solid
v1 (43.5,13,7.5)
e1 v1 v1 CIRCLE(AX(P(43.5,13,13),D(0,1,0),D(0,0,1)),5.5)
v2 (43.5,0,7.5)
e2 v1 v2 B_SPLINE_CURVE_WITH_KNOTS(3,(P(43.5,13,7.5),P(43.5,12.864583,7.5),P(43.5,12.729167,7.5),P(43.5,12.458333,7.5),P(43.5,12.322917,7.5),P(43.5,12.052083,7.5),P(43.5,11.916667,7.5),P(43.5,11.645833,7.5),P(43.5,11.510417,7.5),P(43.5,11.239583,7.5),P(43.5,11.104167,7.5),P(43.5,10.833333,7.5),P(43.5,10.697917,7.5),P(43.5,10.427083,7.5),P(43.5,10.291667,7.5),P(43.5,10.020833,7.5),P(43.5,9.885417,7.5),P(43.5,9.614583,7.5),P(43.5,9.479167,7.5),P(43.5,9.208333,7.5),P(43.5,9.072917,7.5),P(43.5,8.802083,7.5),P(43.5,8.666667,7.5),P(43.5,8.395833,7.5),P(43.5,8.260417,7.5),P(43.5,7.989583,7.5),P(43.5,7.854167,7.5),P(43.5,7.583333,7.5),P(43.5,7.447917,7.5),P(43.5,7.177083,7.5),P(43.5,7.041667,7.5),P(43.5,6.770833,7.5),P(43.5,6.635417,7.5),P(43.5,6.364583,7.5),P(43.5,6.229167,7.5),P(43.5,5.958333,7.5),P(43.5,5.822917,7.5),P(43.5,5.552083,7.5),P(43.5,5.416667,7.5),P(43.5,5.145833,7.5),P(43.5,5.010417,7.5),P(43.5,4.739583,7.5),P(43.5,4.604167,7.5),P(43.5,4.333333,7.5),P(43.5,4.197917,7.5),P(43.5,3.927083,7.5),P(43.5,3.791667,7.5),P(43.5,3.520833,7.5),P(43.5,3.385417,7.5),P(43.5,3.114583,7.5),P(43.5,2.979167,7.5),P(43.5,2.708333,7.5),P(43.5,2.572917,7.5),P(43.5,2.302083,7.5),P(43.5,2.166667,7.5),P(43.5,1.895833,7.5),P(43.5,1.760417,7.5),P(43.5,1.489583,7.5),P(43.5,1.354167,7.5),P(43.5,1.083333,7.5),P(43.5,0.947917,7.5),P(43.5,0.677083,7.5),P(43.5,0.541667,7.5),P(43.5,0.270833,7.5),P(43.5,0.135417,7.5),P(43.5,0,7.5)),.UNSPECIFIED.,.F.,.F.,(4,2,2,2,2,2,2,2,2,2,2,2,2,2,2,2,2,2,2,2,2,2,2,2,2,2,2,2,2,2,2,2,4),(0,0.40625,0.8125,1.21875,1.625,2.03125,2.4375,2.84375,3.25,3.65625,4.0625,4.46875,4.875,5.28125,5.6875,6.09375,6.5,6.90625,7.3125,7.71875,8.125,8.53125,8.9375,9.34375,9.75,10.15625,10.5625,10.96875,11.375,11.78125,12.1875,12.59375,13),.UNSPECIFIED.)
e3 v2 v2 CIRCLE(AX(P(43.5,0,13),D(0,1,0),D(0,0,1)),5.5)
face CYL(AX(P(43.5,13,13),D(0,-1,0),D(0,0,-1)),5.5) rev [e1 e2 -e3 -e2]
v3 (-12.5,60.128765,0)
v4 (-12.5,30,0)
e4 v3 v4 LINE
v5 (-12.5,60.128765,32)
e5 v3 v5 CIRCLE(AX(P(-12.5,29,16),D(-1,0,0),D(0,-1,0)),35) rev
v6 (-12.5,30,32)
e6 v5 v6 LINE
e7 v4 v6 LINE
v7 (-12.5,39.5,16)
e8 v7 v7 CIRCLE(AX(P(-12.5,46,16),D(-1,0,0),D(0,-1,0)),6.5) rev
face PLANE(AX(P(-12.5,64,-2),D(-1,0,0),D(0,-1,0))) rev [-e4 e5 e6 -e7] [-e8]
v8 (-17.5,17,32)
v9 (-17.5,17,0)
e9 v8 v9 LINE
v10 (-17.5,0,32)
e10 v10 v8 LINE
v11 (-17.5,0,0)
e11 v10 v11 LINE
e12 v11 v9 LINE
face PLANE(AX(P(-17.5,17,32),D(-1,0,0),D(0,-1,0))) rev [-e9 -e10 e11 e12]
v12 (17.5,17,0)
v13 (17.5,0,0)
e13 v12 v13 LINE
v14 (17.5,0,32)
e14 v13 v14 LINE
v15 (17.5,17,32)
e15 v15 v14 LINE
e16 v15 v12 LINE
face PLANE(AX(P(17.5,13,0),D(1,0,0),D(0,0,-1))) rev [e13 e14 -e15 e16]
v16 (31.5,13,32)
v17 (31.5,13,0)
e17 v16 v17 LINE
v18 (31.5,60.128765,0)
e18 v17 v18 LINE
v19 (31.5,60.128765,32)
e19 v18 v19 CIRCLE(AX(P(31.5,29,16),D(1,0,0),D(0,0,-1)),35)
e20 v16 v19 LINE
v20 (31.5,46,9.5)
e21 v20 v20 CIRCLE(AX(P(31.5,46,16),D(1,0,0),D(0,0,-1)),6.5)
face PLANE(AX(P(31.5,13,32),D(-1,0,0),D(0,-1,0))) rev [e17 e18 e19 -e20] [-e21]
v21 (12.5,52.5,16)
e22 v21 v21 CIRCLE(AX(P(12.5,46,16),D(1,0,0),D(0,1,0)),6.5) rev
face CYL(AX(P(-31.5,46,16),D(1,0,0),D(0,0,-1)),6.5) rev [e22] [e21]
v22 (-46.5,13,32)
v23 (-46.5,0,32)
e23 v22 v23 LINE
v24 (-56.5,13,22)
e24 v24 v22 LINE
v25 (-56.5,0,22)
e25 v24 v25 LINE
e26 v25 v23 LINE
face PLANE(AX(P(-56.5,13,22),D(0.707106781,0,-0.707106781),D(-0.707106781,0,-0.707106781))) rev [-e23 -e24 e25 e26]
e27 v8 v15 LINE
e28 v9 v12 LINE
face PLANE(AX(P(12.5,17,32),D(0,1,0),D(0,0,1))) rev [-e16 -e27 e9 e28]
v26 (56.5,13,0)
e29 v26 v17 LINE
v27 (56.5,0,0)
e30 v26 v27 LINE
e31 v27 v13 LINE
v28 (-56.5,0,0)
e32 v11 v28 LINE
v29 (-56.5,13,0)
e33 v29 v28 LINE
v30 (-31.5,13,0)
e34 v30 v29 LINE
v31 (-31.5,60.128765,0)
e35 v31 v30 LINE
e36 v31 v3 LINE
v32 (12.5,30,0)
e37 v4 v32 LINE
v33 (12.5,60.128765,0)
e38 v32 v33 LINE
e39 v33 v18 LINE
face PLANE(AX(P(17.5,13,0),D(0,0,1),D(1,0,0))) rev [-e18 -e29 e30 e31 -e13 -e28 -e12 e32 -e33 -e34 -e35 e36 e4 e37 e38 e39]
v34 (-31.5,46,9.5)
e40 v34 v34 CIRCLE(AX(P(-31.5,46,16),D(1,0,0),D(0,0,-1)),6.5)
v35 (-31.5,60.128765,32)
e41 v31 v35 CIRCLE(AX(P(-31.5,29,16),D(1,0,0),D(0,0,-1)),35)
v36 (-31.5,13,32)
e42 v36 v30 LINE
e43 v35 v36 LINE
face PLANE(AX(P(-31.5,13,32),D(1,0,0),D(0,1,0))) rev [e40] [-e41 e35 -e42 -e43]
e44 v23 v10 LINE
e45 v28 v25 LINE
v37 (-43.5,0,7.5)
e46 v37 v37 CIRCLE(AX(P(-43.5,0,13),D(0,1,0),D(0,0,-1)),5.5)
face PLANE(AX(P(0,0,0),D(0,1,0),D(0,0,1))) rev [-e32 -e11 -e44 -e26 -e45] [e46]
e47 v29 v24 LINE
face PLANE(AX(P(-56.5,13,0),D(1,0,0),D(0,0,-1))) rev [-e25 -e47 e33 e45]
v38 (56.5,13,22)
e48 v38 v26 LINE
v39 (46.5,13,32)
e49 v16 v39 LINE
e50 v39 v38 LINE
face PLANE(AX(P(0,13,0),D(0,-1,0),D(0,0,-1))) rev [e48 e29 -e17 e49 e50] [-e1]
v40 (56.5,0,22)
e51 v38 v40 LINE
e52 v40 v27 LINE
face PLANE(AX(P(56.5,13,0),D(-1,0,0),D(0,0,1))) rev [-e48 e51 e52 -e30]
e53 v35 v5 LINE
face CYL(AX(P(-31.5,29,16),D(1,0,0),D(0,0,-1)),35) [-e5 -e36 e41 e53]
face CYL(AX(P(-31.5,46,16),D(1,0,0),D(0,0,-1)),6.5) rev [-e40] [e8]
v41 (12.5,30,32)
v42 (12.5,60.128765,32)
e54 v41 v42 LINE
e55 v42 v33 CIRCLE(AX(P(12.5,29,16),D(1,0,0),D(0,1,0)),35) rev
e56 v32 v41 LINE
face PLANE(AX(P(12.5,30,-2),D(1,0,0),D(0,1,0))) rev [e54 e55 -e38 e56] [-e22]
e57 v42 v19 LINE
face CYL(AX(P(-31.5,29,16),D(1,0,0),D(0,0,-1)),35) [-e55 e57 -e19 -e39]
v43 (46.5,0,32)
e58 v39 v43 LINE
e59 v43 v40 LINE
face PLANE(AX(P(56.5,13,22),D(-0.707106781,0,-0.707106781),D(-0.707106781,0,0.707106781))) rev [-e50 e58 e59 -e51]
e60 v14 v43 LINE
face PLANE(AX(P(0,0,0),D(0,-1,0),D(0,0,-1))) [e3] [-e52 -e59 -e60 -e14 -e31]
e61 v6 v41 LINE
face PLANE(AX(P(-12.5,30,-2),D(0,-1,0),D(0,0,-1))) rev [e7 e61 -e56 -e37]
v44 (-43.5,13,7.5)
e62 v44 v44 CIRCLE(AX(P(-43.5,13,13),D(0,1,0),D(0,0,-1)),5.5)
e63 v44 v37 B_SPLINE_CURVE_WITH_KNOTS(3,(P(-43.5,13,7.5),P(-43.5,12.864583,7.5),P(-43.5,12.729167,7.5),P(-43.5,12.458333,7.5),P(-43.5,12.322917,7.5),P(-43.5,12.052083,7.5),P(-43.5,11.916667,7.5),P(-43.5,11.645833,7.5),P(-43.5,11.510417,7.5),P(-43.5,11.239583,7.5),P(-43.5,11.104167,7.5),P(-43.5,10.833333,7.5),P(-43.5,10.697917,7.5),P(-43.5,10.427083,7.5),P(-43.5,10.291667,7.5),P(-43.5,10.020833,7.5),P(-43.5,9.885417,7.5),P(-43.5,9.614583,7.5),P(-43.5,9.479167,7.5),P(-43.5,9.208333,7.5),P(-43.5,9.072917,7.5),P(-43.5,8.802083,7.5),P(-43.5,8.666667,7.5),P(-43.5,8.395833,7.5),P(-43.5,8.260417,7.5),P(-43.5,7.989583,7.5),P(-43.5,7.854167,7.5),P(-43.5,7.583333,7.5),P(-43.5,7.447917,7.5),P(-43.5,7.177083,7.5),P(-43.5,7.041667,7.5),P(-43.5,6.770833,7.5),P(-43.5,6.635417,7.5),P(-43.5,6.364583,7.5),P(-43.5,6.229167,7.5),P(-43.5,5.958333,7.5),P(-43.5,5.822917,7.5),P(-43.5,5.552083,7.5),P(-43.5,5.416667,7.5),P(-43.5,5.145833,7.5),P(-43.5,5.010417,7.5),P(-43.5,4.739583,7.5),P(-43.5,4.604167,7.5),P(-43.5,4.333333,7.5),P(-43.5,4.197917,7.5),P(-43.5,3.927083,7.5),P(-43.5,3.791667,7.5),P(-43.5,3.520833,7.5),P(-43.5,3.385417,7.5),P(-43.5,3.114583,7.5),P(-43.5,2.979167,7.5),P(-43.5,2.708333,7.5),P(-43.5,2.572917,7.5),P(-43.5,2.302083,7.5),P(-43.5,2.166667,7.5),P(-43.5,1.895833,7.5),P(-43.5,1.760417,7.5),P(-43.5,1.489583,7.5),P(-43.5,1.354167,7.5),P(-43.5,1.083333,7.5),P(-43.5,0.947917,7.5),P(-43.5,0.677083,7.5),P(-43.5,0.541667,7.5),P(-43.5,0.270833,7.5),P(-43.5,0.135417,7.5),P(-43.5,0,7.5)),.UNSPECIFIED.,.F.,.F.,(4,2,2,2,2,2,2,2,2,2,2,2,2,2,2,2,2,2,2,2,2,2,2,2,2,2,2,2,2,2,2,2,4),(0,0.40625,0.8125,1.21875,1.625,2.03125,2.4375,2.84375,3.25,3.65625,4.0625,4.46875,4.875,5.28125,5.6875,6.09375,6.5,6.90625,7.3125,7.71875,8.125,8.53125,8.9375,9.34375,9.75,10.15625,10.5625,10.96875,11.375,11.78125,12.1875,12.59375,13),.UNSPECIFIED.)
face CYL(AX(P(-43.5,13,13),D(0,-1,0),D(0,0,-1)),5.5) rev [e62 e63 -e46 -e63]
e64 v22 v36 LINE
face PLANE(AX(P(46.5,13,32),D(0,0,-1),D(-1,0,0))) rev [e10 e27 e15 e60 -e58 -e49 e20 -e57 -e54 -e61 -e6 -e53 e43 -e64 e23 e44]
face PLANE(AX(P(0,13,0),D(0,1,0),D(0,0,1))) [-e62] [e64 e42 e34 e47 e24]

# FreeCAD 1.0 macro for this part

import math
import FreeCAD as App
import Part
import Sketcher


def add_polygon(sketch, points):
    """Adds a closed chain of lines whose ends are joined by coincident constraints."""
    first, n = sketch.GeometryCount, len(points)
    for a, b in zip(points, points[1:] + points[:1]):
        sketch.addGeometry(Part.LineSegment(App.Vector(*a, 0), App.Vector(*b, 0)), False)
    for i in range(n):
        sketch.addConstraint(Sketcher.Constraint("Coincident", first + i, 2, first + (i + 1) % n, 1))

doc = App.newDocument("Part")
body = doc.addObject("PartDesign::Body", "Body")

# Sketch on XZ plane
sketch1 = body.newObject("Sketcher::SketchObject", "Sketch")
sketch1.AttachmentSupport = (doc.getObject("XZ_Plane"), [""])
sketch1.MapMode = "FlatFace"
add_polygon(sketch1, [(56, 0), (18, 0), (18, 32), (46, 32), (56, 22)])  # lines 0-4
sketch1.addGeometry(Part.Circle(App.Vector(44, 13, 0), App.Vector(0, 0, 1), 6), False)  # 5
sketch1.addConstraint(Sketcher.Constraint("Horizontal", 0))
sketch1.addConstraint(Sketcher.Constraint("Vertical", 1))
sketch1.addConstraint(Sketcher.Constraint("Horizontal", 2))
sketch1.addConstraint(Sketcher.Constraint("Vertical", 4))
sketch1.addConstraint(Sketcher.Constraint("PointOnObject", 0, 2, -1))
sketch1.addConstraint(Sketcher.Constraint("Diameter", 5, 11.0))
sketch1.addConstraint(Sketcher.Constraint("DistanceX", 0, 2, 0, 1, 39.0))
sketch1.addConstraint(Sketcher.Constraint("DistanceX", 2, 1, 2, 2, 29.0))
sketch1.addConstraint(Sketcher.Constraint("DistanceY", 1, 1, 1, 2, 32.0))
sketch1.addConstraint(Sketcher.Constraint("DistanceY", 4, 2, 4, 1, 22.0))
sketch1.addConstraint(Sketcher.Constraint("DistanceY", -1, 1, 5, 3, 13.0))
sketch1.addConstraint(Sketcher.Constraint("DistanceX", 0, 2, 5, 3, 26.0))
sketch1.addConstraint(Sketcher.Constraint("DistanceX", -1, 1, 5, 3, 43.5))
pad1 = body.newObject("PartDesign::Pad", "Pad")
pad1.Profile = sketch1
pad1.Length = 13
pad1.Reversed = True
body2 = doc.addObject("PartDesign::Body", "Body001")

# Sketch on XZ plane
sketch2 = body2.newObject("Sketcher::SketchObject", "Sketch001")
sketch2.AttachmentSupport = (doc.getObject("XZ_Plane001"), [""])
sketch2.MapMode = "FlatFace"
add_polygon(sketch2, [(-18, 32), (-18, 0), (-56, 0), (-56, 22), (-46, 32)])  # lines 0-4
sketch2.addGeometry(Part.Circle(App.Vector(-44, 13, 0), App.Vector(0, 0, 1), 6), False)  # 5
sketch2.addConstraint(Sketcher.Constraint("Vertical", 0))
sketch2.addConstraint(Sketcher.Constraint("Horizontal", 1))
sketch2.addConstraint(Sketcher.Constraint("Vertical", 2))
sketch2.addConstraint(Sketcher.Constraint("Horizontal", 4))
sketch2.addConstraint(Sketcher.Constraint("PointOnObject", 0, 2, -1))
sketch2.addConstraint(Sketcher.Constraint("Diameter", 5, 11.0))
sketch2.addConstraint(Sketcher.Constraint("DistanceX", 1, 2, 1, 1, 39.0))
sketch2.addConstraint(Sketcher.Constraint("DistanceX", 4, 1, 4, 2, 29.0))
sketch2.addConstraint(Sketcher.Constraint("DistanceY", 0, 2, 0, 1, 32.0))
sketch2.addConstraint(Sketcher.Constraint("DistanceY", 2, 1, 2, 2, 22.0))
sketch2.addConstraint(Sketcher.Constraint("DistanceY", -1, 1, 5, 3, 13.0))
sketch2.addConstraint(Sketcher.Constraint("DistanceX", 5, 3, 0, 2, 26.0))
sketch2.addConstraint(Sketcher.Constraint("DistanceX", 5, 3, -1, 1, 43.5))
pad2 = body2.newObject("PartDesign::Pad", "Pad001")
pad2.Profile = sketch2
pad2.Length = 13
pad2.Reversed = True
body.AllowCompound = True
doc.recompute()

boolean = body.newObject("PartDesign::Boolean", "Boolean")
boolean.Type = "Fuse"
boolean.addObjects([body2])

# Sketch on XY plane
sketch3 = body.newObject("Sketcher::SketchObject", "Sketch002")
sketch3.AttachmentSupport = (doc.getObject("XY_Plane"), [""])
sketch3.MapMode = "FlatFace"
add_polygon(sketch3, [(-31.5, 13), (-17.5, 13), (-17.5, 17), (17.5, 17), (17.5, 13), (31.5, 13), (31.5, 29), (12.5, 29), (12.5, 30), (-12.5, 30), (-12.5, 29), (-31.5, 29)])  # lines 0-11
sketch3.addConstraint(Sketcher.Constraint("Horizontal", 0))
sketch3.addConstraint(Sketcher.Constraint("Vertical", 1))
sketch3.addConstraint(Sketcher.Constraint("Horizontal", 2))
sketch3.addConstraint(Sketcher.Constraint("Vertical", 3))
sketch3.addConstraint(Sketcher.Constraint("Horizontal", 4))
sketch3.addConstraint(Sketcher.Constraint("Vertical", 5))
sketch3.addConstraint(Sketcher.Constraint("Horizontal", 6))
sketch3.addConstraint(Sketcher.Constraint("Vertical", 7))
sketch3.addConstraint(Sketcher.Constraint("Horizontal", 8))
sketch3.addConstraint(Sketcher.Constraint("Vertical", 9))
sketch3.addConstraint(Sketcher.Constraint("Horizontal", 10))
sketch3.addConstraint(Sketcher.Constraint("Vertical", 11))
sketch3.addConstraint(Sketcher.Constraint("Symmetric", 0, 2, 3, 2, -2))
sketch3.addConstraint(Sketcher.Constraint("Symmetric", 6, 2, 9, 2, -2))
sketch3.addConstraint(Sketcher.Constraint("Equal", 0, 4))
sketch3.addConstraint(Sketcher.Constraint("DistanceX", 0, 1, 0, 2, 14.0))
sketch3.addConstraint(Sketcher.Constraint("DistanceX", 2, 1, 2, 2, 35.0))
sketch3.addConstraint(Sketcher.Constraint("DistanceX", 6, 2, 6, 1, 19.0))
sketch3.addConstraint(Sketcher.Constraint("DistanceY", 1, 1, 1, 2, 4.0))
sketch3.addConstraint(Sketcher.Constraint("DistanceY", 5, 1, 5, 2, 16.0))
sketch3.addConstraint(Sketcher.Constraint("DistanceY", 7, 1, 7, 2, 1.0))
sketch3.addConstraint(Sketcher.Constraint("DistanceY", -1, 1, 0, 2, 13.0))
pad3 = body.newObject("PartDesign::Pad", "Pad002")
pad3.Profile = sketch3
pad3.Length = 32

# Sketch on YZ plane
sketch4 = body.newObject("Sketcher::SketchObject", "Sketch003")
sketch4.AttachmentSupport = (doc.getObject("YZ_Plane"), [""])
sketch4.MapMode = "FlatFace"
sketch4.AttachmentOffset = App.Placement(App.Vector(0, 0, 12.5), App.Rotation())
sketch4.addGeometry(Part.LineSegment(App.Vector(29, 32, 0), App.Vector(29, 0, 0)), False)
sketch4.addGeometry(Part.LineSegment(App.Vector(29, 0, 0), App.Vector(60, 0, 0)), False)
sketch4.addGeometry(Part.ArcOfCircle(Part.Circle(App.Vector(29, 16, 0), App.Vector(0, 0, 1), 35), math.radians(-27), math.radians(27)), False)
sketch4.addGeometry(Part.LineSegment(App.Vector(60, 32, 0), App.Vector(29, 32, 0)), False)
sketch4.addGeometry(Part.Circle(App.Vector(46, 16, 0), App.Vector(0, 0, 1), 6), False)
sketch4.addConstraint(Sketcher.Constraint("Coincident", 0, 2, 1, 1))
sketch4.addConstraint(Sketcher.Constraint("Coincident", 1, 2, 2, 1))
sketch4.addConstraint(Sketcher.Constraint("Coincident", 2, 2, 3, 1))
sketch4.addConstraint(Sketcher.Constraint("Coincident", 3, 2, 0, 1))
sketch4.addConstraint(Sketcher.Constraint("Vertical", 0))
sketch4.addConstraint(Sketcher.Constraint("Horizontal", 1))
sketch4.addConstraint(Sketcher.Constraint("Horizontal", 3))
sketch4.addConstraint(Sketcher.Constraint("PointOnObject", 0, 2, -1))
sketch4.addConstraint(Sketcher.Constraint("Horizontal", 2, 3, 4, 3))
sketch4.addConstraint(Sketcher.Constraint("Vertical", 2, 3, 0, 2))
sketch4.addConstraint(Sketcher.Constraint("Vertical", 1, 2, 2, 2))
sketch4.addConstraint(Sketcher.Constraint("Diameter", 4, 13.0))
sketch4.addConstraint(Sketcher.Constraint("Radius", 2, 35.0))
sketch4.addConstraint(Sketcher.Constraint("DistanceY", 0, 2, 0, 1, 32.0))
sketch4.addConstraint(Sketcher.Constraint("DistanceX", -1, 1, 2, 3, 29.0))
sketch4.addConstraint(Sketcher.Constraint("DistanceX", -1, 1, 4, 3, 46.0))
pad4 = body.newObject("PartDesign::Pad", "Pad003")
pad4.Profile = sketch4
pad4.Type = "TwoLengths"
pad4.Length = 19
pad4.Length2 = 44

# Sketch on XY plane
sketch5 = body.newObject("Sketcher::SketchObject", "Sketch004")
sketch5.AttachmentSupport = (doc.getObject("XY_Plane"), [""])
sketch5.MapMode = "FlatFace"
sketch5.AttachmentOffset = App.Placement(App.Vector(0, 0, 32), App.Rotation())
add_polygon(sketch5, [(-12, 64), (-12, 30), (12, 30), (12, 64)])  # lines 0-3
sketch5.addConstraint(Sketcher.Constraint("Vertical", 0))
sketch5.addConstraint(Sketcher.Constraint("Horizontal", 1))
sketch5.addConstraint(Sketcher.Constraint("Vertical", 2))
sketch5.addConstraint(Sketcher.Constraint("Horizontal", 3))
sketch5.addConstraint(Sketcher.Constraint("DistanceX", 1, 1, 1, 2, 25.0))
sketch5.addConstraint(Sketcher.Constraint("DistanceY", 0, 2, 0, 1, 34.0))
sketch5.addConstraint(Sketcher.Constraint("DistanceY", -1, 1, 0, 2, 30.0))
sketch5.addConstraint(Sketcher.Constraint("DistanceX", 0, 2, -1, 1, 12.5))
pocket1 = body.newObject("PartDesign::Pocket", "Pocket")
pocket1.Profile = sketch5
pocket1.Length = 34

doc.recompute()
